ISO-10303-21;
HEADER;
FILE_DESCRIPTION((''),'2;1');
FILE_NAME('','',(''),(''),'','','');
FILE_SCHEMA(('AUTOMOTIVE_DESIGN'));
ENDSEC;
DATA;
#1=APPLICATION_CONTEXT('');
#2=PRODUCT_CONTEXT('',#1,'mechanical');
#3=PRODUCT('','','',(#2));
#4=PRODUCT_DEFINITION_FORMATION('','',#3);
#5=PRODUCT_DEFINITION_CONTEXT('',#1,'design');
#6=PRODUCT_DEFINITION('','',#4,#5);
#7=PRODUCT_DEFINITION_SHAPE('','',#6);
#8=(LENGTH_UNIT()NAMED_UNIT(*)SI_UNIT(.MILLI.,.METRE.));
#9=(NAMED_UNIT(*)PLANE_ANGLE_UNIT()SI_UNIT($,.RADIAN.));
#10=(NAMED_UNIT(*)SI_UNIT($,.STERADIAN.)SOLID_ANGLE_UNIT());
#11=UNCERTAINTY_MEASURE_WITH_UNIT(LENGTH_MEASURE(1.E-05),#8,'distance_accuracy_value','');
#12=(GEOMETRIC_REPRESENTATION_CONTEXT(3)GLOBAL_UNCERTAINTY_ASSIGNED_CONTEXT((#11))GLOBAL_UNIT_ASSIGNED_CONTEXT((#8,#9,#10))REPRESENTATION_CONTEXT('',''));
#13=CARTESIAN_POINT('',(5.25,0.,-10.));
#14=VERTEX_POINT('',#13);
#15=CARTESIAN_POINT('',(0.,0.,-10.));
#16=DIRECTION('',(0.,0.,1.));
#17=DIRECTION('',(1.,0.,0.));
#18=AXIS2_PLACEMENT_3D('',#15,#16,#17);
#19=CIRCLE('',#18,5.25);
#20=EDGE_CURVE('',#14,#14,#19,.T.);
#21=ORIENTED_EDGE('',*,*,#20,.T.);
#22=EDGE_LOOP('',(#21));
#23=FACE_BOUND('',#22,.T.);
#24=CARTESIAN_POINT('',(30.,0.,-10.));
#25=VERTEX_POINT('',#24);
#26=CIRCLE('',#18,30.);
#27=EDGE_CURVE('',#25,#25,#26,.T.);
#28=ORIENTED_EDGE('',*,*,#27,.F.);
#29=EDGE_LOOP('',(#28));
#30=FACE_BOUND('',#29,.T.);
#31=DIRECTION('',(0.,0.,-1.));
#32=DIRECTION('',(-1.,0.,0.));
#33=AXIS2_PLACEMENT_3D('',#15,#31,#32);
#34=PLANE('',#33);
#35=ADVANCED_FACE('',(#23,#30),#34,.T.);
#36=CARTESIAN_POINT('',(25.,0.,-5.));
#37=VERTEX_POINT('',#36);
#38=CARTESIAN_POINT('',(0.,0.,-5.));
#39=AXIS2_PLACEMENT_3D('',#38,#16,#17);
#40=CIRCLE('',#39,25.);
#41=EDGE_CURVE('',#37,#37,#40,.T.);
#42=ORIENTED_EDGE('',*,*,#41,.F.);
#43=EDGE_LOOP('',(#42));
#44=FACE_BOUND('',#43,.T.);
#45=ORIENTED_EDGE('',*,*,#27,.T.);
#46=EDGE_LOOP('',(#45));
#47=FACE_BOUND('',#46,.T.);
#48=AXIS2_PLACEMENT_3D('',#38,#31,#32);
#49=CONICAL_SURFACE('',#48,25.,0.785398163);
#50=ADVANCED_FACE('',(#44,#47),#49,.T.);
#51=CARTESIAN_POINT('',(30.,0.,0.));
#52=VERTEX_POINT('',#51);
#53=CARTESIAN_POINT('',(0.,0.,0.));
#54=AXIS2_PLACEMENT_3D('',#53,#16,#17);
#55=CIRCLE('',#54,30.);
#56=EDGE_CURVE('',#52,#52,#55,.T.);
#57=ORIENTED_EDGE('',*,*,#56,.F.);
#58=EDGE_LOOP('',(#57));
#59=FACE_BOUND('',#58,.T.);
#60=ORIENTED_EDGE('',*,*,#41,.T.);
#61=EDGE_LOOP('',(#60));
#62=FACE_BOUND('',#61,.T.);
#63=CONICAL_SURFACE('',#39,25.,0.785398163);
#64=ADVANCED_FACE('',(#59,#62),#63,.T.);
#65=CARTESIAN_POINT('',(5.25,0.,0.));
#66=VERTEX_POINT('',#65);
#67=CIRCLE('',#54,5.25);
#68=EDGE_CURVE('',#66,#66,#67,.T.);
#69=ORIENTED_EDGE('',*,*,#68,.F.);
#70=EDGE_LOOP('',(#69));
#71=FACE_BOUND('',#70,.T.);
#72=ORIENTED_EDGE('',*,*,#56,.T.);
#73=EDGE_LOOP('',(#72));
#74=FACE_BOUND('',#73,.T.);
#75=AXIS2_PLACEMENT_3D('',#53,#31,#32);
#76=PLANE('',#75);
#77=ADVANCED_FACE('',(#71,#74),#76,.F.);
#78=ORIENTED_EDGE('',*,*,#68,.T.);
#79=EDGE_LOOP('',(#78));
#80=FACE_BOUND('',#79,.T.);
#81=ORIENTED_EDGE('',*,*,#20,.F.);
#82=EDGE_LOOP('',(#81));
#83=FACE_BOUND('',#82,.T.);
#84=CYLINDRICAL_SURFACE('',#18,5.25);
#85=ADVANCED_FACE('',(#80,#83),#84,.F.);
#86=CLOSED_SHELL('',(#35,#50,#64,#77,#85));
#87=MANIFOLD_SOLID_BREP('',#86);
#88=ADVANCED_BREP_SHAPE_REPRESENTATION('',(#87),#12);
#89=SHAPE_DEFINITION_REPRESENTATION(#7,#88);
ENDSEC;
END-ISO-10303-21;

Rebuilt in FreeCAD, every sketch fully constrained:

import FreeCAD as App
import Part
import Sketcher
Q = App.Units.Quantity


def add_polygon(sketch, points):
    """Adds a closed chain of lines whose ends are joined by coincident constraints."""
    first, n = sketch.GeometryCount, len(points)
    for a, b in zip(points, points[1:] + points[:1]):
        sketch.addGeometry(Part.LineSegment(App.Vector(*a, 0), App.Vector(*b, 0)), False)
    for i in range(n):
        sketch.addConstraint(Sketcher.Constraint("Coincident", first + i, 2, first + (i + 1) % n, 1))

doc = App.newDocument("Part")
body = doc.addObject("PartDesign::Body", "Body")

sketch1 = doc.addObject("Sketcher::SketchObject", "Sketch")
body.addObject(sketch1)
sketch1.AttachmentSupport = (doc.XZ_Plane, [""])
sketch1.MapMode = "FlatFace"
add_polygon(sketch1, [(0, -10), (-30, -10), (-25, -5), (-30, 0), (0, 0)])
sketch1.addConstraint([
    Sketcher.Constraint("Horizontal", 0),
    Sketcher.Constraint("Horizontal", 3),
    Sketcher.Constraint("Vertical", 4),
    Sketcher.Constraint("Coincident", 3, 2, -1, 1),
    Sketcher.Constraint("Perpendicular", 1, 2),
    Sketcher.Constraint("Vertical", 0, 2, 2, 2),
    Sketcher.Constraint("Equal", 1, 2),
    Sketcher.Constraint("DistanceX", 0, 2, 0, 1, Q("30 mm")),
    Sketcher.Constraint("DistanceY", 4, 2, 4, 1, Q("10 mm")),
])
revolution = doc.addObject("PartDesign::Revolution", "Revolution")
body.addObject(revolution)
revolution.Profile = sketch1
revolution.ReferenceAxis = (sketch1, ["V_Axis"])
revolution.Angle = 360

sketch2 = doc.addObject("Sketcher::SketchObject", "Sketch001")
body.addObject(sketch2)
sketch2.AttachmentSupport = (doc.XY_Plane, [""])
sketch2.MapMode = "FlatFace"
sketch2.addGeometry(Part.Circle(App.Vector(0, 0, 0), App.Vector(0, 0, 1), 5), False)
sketch2.addConstraint([
    Sketcher.Constraint("Coincident", 0, 3, -1, 1),
    Sketcher.Constraint("Diameter", 0, Q("10.5 mm")),
])
pocket1 = doc.addObject("PartDesign::Pocket", "Pocket")
body.addObject(pocket1)
pocket1.Profile = sketch2
pocket1.Type = "ThroughAll"

doc.recompute()
